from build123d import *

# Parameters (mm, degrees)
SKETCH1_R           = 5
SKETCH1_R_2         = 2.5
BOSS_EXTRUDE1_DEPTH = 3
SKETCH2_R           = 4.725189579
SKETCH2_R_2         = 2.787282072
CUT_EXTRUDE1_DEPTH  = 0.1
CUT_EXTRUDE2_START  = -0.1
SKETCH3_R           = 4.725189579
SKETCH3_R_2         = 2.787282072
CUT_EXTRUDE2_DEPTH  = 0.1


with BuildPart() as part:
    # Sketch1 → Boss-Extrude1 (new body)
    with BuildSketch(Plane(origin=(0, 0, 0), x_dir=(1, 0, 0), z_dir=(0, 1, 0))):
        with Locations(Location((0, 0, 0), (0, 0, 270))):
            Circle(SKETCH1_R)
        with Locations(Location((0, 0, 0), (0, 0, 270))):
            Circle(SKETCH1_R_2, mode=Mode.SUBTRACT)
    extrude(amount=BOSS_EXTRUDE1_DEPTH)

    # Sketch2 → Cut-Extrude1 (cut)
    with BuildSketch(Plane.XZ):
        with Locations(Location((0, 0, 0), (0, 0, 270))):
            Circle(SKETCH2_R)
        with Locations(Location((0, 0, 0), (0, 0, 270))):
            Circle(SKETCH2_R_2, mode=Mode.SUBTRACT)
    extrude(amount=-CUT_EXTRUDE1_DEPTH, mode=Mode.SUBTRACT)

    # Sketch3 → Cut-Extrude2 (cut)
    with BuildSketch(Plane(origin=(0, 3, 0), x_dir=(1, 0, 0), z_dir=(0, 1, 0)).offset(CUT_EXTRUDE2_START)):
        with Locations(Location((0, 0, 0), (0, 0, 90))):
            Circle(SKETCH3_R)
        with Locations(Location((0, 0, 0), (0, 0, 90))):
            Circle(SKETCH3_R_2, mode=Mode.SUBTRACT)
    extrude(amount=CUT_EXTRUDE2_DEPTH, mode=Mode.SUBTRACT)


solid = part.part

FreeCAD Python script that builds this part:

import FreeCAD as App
import Part
import Sketcher
from FreeCAD import Vector

doc = App.newDocument("Part")
body = doc.addObject("PartDesign::Body", "Body")

sketch1 = body.newObject("Sketcher::SketchObject", "Sketch")
sketch1.AttachmentSupport = (doc.getObject("XZ_Plane"), [""])
sketch1.MapMode = "FlatFace"
sketch1.addGeometry(Part.Circle(Vector(0, 0, 0), Vector(0, 0, 1), 5), False)
sketch1.addGeometry(Part.Circle(Vector(0, 0, 0), Vector(0, 0, 1), 2.5), False)
sketch1.addConstraint(Sketcher.Constraint("Coincident", 0, 3, -1, 1))
sketch1.addConstraint(Sketcher.Constraint("Coincident", 1, 3, -1, 1))
sketch1.addConstraint(Sketcher.Constraint("Diameter", 0, 10.0))
sketch1.addConstraint(Sketcher.Constraint("Diameter", 1, 5.0))
pad1 = body.newObject("PartDesign::Pad", "Pad")
pad1.Profile = sketch1
pad1.Length = 3
pad1.Reversed = True

sketch2 = body.newObject("Sketcher::SketchObject", "Sketch001")
sketch2.AttachmentSupport = (doc.getObject("XZ_Plane"), [""])
sketch2.MapMode = "FlatFace"
sketch2.addGeometry(Part.Circle(Vector(0, 0, 0), Vector(0, 0, 1), 4.72519), False)
sketch2.addGeometry(Part.Circle(Vector(0, 0, 0), Vector(0, 0, 1), 2.787282), False)
sketch2.addConstraint(Sketcher.Constraint("Coincident", 0, 3, -1, 1))
sketch2.addConstraint(Sketcher.Constraint("Coincident", 1, 3, -1, 1))
sketch2.addConstraint(Sketcher.Constraint("Diameter", 0, 9.450379))
sketch2.addConstraint(Sketcher.Constraint("Diameter", 1, 5.574564))
pocket1 = body.newObject("PartDesign::Pocket", "Pocket")
pocket1.Profile = sketch2
pocket1.Length = 0.1

sketch3 = body.newObject("Sketcher::SketchObject", "Sketch002")
sketch3.AttachmentSupport = (doc.getObject("XZ_Plane"), [""])
sketch3.MapMode = "FlatFace"
sketch3.AttachmentOffset = App.Placement(Vector(0, 0, -2.9), App.Rotation())
sketch3.addGeometry(Part.Circle(Vector(0, 0, 0), Vector(0, 0, 1), 4.72519), False)
sketch3.addGeometry(Part.Circle(Vector(0, 0, 0), Vector(0, 0, 1), 2.787282), False)
sketch3.addConstraint(Sketcher.Constraint("Coincident", 0, 3, -1, 1))
sketch3.addConstraint(Sketcher.Constraint("Coincident", 1, 3, -1, 1))
sketch3.addConstraint(Sketcher.Constraint("Diameter", 0, 9.450379))
sketch3.addConstraint(Sketcher.Constraint("Diameter", 1, 5.574564))
pocket2 = body.newObject("PartDesign::Pocket", "Pocket001")
pocket2.Profile = sketch3
pocket2.Length = 0.1

doc.recompute()
